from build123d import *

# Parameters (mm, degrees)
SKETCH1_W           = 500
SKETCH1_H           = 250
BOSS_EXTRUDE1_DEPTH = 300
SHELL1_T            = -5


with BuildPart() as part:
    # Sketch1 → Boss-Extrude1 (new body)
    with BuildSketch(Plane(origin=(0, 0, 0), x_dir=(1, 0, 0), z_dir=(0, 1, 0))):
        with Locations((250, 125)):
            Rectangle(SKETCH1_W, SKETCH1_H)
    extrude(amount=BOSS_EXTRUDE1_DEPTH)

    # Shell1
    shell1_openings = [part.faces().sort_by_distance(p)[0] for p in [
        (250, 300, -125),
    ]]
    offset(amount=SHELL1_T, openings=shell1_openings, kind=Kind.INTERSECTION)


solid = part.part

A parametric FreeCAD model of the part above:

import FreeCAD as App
import Part
import Sketcher
from FreeCAD import Vector
Q = App.Units.Quantity


def faces_at(feature, points):
    """Names of the faces that lie closest to the given points."""
    faces = feature.Shape.Faces
    near = lambda p: min(range(len(faces)), key=lambda i: faces[i].distToShape(Part.Vertex(*p))[0])
    return sorted({f"Face{near(p) + 1}" for p in points})


def add_polygon(sketch, points):
    """Adds a closed chain of lines whose ends are joined by coincident constraints."""
    first, n = sketch.GeometryCount, len(points)
    for a, b in zip(points, points[1:] + points[:1]):
        sketch.addGeometry(Part.LineSegment(App.Vector(*a, 0), App.Vector(*b, 0)), False)
    for i in range(n):
        sketch.addConstraint(Sketcher.Constraint("Coincident", first + i, 2, first + (i + 1) % n, 1))

doc = App.newDocument("Part")
params = doc.addObject("Spreadsheet::Sheet", "Params")
for row, (alias, value) in enumerate([
    ("sketch1_width", "500 mm"),
    ("sketch1_height", "250 mm"),
    ("pad1_length", "300 mm"),
    ("thickness_wall", "5 mm"),
], start=1):
    params.set(f"A{row}", alias)
    params.set(f"B{row}", "=" + value)
    params.setAlias(f"B{row}", alias)

body = doc.addObject("PartDesign::Body", "Body")

# Sketch on XZ plane
sketch1 = doc.addObject("Sketcher::SketchObject", "Sketch")
body.addObject(sketch1)
sketch1.AttachmentSupport = (doc.XZ_Plane, [""])
sketch1.MapMode = "FlatFace"
add_polygon(sketch1, [(0, -250), (0, 0), (500, 0), (500, -250)])  # lines 0-3
sketch1.addConstraint(Sketcher.Constraint("Vertical", 0))
sketch1.addConstraint(Sketcher.Constraint("Horizontal", 1))
sketch1.addConstraint(Sketcher.Constraint("Vertical", 2))
sketch1.addConstraint(Sketcher.Constraint("Horizontal", 3))
sketch1.addConstraint(Sketcher.Constraint("Coincident", 0, 2, -1, 1))
sketch1.addConstraint(Sketcher.Constraint("DistanceX", 1, 1, 1, 2, Q("500 mm")))
sketch1.addConstraint(Sketcher.Constraint("DistanceY", 0, 1, 0, 2, Q("250 mm")))
sketch1.setExpression("Constraints[9]", "Params.sketch1_width")
sketch1.setExpression("Constraints[10]", "Params.sketch1_height")
pad1 = doc.addObject("PartDesign::Pad", "Pad")
body.addObject(pad1)
pad1.Profile = sketch1
pad1.setExpression("Length", "Params.pad1_length")
pad1.Reversed = True
doc.recompute()

thickness = doc.addObject("PartDesign::Thickness", "Thickness")
body.addObject(thickness)
thickness.Base = (pad1, faces_at(pad1, [(250, 300, -125)]))
thickness.setExpression("Value", "Params.thickness_wall")
thickness.Reversed = True
thickness.Join = "Intersection"

doc.recompute()
